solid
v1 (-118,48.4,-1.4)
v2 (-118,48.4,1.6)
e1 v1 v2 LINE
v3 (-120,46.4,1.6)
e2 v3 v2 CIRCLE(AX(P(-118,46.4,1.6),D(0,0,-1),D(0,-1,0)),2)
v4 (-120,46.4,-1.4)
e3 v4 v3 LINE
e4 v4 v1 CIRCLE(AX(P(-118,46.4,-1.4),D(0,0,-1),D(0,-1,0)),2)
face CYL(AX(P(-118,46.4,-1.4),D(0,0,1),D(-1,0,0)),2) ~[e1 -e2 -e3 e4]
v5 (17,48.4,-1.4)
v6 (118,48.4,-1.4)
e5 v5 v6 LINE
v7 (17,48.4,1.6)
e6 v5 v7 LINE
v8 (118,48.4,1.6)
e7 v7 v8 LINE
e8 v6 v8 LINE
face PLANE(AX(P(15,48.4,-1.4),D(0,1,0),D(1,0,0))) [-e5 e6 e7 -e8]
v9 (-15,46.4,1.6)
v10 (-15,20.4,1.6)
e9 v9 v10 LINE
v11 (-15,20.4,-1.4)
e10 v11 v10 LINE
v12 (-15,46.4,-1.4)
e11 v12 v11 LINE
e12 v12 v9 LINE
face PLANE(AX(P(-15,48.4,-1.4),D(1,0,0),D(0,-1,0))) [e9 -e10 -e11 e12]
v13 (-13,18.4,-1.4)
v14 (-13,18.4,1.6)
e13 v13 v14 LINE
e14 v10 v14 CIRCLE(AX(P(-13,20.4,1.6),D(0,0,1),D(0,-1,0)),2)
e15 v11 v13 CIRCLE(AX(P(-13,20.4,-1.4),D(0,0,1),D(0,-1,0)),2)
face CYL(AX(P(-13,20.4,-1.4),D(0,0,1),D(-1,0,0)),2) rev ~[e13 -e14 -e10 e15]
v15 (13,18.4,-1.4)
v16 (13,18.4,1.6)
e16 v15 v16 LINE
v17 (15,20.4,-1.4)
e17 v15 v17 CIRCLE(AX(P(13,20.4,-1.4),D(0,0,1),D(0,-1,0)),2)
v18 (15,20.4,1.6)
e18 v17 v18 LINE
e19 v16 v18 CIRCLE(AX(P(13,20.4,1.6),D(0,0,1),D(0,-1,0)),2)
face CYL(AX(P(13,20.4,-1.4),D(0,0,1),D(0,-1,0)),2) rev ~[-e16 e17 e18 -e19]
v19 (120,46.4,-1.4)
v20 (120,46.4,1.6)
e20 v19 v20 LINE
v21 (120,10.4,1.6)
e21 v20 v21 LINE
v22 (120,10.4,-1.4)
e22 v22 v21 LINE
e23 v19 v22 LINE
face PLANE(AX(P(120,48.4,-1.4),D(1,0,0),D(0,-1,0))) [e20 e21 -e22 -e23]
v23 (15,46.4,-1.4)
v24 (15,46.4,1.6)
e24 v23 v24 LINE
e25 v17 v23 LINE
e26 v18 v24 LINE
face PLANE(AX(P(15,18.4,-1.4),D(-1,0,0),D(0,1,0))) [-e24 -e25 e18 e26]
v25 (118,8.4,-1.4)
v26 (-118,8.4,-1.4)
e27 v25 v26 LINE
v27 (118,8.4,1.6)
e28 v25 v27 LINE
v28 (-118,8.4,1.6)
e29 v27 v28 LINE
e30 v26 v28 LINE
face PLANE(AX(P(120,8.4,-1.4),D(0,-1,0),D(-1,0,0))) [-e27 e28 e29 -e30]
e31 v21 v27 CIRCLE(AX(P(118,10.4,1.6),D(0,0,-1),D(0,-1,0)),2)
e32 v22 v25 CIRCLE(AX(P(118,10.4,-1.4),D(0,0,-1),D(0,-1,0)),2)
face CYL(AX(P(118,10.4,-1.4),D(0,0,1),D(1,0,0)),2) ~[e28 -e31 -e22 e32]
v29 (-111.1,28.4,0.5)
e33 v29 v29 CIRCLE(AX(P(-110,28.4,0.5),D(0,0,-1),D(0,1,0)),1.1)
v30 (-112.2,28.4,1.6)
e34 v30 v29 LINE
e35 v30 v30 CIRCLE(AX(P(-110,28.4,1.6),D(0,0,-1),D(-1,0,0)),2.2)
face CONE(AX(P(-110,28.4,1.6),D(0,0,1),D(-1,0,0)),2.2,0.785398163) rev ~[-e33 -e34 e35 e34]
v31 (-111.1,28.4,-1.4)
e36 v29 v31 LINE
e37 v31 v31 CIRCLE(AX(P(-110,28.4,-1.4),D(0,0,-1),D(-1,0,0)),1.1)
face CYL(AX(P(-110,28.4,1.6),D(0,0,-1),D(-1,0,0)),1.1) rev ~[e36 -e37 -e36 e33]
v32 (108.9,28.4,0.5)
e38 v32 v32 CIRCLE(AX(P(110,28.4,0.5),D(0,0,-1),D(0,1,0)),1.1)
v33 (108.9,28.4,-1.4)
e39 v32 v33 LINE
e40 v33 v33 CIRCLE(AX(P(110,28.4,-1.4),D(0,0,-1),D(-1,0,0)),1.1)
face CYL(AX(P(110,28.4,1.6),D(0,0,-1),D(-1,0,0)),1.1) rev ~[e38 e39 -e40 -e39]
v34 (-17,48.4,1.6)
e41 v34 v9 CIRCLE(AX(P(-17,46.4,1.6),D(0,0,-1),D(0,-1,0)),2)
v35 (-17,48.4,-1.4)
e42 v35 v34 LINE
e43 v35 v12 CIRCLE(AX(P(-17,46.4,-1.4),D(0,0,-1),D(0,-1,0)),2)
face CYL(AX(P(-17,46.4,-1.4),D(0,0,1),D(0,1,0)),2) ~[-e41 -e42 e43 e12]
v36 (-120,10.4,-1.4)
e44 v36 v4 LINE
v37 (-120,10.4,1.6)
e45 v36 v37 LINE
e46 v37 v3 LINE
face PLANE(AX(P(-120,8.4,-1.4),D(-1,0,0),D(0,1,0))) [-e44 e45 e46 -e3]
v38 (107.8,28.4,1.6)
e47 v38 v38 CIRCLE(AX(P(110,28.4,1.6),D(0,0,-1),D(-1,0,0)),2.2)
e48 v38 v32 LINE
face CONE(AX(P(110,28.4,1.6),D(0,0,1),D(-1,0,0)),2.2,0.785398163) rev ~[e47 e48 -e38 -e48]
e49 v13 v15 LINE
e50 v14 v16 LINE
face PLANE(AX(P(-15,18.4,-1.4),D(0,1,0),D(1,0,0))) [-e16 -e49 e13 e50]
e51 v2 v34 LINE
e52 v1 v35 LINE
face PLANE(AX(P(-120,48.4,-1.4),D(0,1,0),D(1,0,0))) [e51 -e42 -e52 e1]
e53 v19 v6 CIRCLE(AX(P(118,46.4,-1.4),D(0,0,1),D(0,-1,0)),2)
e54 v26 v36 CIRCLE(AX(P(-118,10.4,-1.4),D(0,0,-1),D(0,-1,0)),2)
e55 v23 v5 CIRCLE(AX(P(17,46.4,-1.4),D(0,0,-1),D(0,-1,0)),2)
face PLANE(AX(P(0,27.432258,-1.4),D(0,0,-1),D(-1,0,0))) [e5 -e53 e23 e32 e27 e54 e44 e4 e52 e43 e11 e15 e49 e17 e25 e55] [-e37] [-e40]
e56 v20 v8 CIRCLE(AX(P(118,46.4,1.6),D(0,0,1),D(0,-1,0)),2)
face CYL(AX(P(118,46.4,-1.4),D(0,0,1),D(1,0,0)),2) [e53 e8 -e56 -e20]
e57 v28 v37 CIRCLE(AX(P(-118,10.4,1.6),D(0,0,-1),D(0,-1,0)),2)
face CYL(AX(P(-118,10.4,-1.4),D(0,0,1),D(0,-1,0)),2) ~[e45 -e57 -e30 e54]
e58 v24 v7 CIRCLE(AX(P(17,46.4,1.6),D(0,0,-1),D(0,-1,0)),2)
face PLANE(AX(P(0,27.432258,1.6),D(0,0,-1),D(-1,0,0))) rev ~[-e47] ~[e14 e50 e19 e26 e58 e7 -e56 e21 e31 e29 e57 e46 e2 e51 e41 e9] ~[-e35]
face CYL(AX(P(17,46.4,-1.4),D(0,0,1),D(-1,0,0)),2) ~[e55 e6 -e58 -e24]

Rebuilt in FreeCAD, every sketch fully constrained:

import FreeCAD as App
import Part
import Sketcher
from FreeCAD import Vector
Q = App.Units.Quantity


def edges_at(feature, points):
    """Names of the edges that pass closest to the given points."""
    edges = feature.Shape.Edges
    near = lambda p: min(range(len(edges)), key=lambda i: edges[i].distToShape(Part.Vertex(*p))[0])
    return sorted({f"Edge{near(p) + 1}" for p in points})


def add_polygon(sketch, points):
    """Adds a closed chain of lines whose ends are joined by coincident constraints."""
    first, n = sketch.GeometryCount, len(points)
    for a, b in zip(points, points[1:] + points[:1]):
        sketch.addGeometry(Part.LineSegment(App.Vector(*a, 0), App.Vector(*b, 0)), False)
    for i in range(n):
        sketch.addConstraint(Sketcher.Constraint("Coincident", first + i, 2, first + (i + 1) % n, 1))

doc = App.newDocument("Part")
params = doc.addObject("Spreadsheet::Sheet", "Params")
for row, (alias, value) in enumerate([
    ("sketch1_width", "105 mm"),
    ("sketch1_width2", "30 mm"),
    ("sketch1_height", "40 mm"),
    ("pad1_length", "3 mm"),
    ("fillet_radius", "2 mm"),
    ("sketch2_diameter", "2.2 mm"),
    ("hole_diameter", "2.2 mm"),
    ("hole_depth", "20 mm"),
    ("hole_csink_diameter", "4.4 mm"),
], start=1):
    params.set(f"A{row}", alias)
    params.set(f"B{row}", "=" + value)
    params.setAlias(f"B{row}", alias)

body = doc.addObject("PartDesign::Body", "Body")

# Sketch on XY plane
sketch1 = doc.addObject("Sketcher::SketchObject", "Sketch")
body.addObject(sketch1)
sketch1.AttachmentSupport = (doc.XY_Plane, [""])
sketch1.MapMode = "FlatFace"
sketch1.AttachmentOffset = App.Placement(Vector(0, 0, -1.4), App.Rotation())
add_polygon(sketch1, [(120, 8), (120, 48), (15, 48), (15, 18), (-15, 18), (-15, 48), (-120, 48), (-120, 8)])  # lines 0-7
sketch1.addConstraint([
    Sketcher.Constraint("Vertical", 0),
    Sketcher.Constraint("Horizontal", 1),
    Sketcher.Constraint("Vertical", 2),
    Sketcher.Constraint("Horizontal", 3),
    Sketcher.Constraint("Vertical", 4),
    Sketcher.Constraint("Horizontal", 5),
    Sketcher.Constraint("Vertical", 6),
    Sketcher.Constraint("Horizontal", 7),
    Sketcher.Constraint("Symmetric", 1, 2, 4, 2, -2),
    Sketcher.Constraint("Equal", 1, 5),
    Sketcher.Constraint("Equal", 3, 2),
    Sketcher.Constraint("DistanceX", 1, 2, 1, 1, Q("105 mm")),
    Sketcher.Constraint("DistanceX", 3, 2, 3, 1, Q("30 mm")),
    Sketcher.Constraint("DistanceY", 0, 1, 0, 2, Q("40 mm")),
    Sketcher.Constraint("DistanceY", -1, 1, 0, 2, Q("48.4 mm")),
])
sketch1.setExpression("Constraints[19]", "Params.sketch1_width")
sketch1.setExpression("Constraints[20]", "Params.sketch1_width2")
sketch1.setExpression("Constraints[21]", "Params.sketch1_height")
pad1 = doc.addObject("PartDesign::Pad", "Pad")
body.addObject(pad1)
pad1.Profile = sketch1
pad1.setExpression("Length", "Params.pad1_length")
doc.recompute()

fillet = doc.addObject("PartDesign::Fillet", "Fillet")
body.addObject(fillet)
fillet.Base = (pad1, edges_at(pad1, [
    (-120, 48.4, 0.1),
    (-120, 8.4, 0.1),
    (120, 8.4, 0.1),
    (120, 48.4, 0.1),
    (15, 48.4, 0.1),
    (-15, 48.4, 0.1),
    (-15, 18.4, 0.1),
    (15, 18.4, 0.1),
]))
fillet.setExpression("Radius", "Params.fillet_radius")

# Sketch on XY plane
sketch2 = doc.addObject("Sketcher::SketchObject", "Sketch001")
body.addObject(sketch2)
sketch2.AttachmentSupport = (doc.XY_Plane, [""])
sketch2.MapMode = "FlatFace"
sketch2.AttachmentOffset = App.Placement(Vector(0, 0, 1.6), App.Rotation())
sketch2.addGeometry([
    Part.Circle(Vector(-110, 28.4, 0), Vector(0, 0, 1), 1.1),
    Part.Circle(Vector(110, 28.4, 0), Vector(0, 0, 1), 1.1),
], False)
sketch2.addConstraint([
    Sketcher.Constraint("Equal", 0, 1),
    Sketcher.Constraint("Symmetric", 0, 3, 1, 3, -2),
    Sketcher.Constraint("Diameter", 0, Q("2.2 mm")),
    Sketcher.Constraint("DistanceX", 0, 3, -1, 1, Q("110 mm")),
    Sketcher.Constraint("DistanceY", -1, 1, 0, 3, Q("28.4 mm")),
])
sketch2.setExpression("Constraints[2]", "Params.sketch2_diameter")
doc.recompute()
hole = doc.addObject("PartDesign::Hole", "Hole")
body.addObject(hole)
hole.Profile = sketch2
hole.ThreadType = "None"
hole.setExpression("Diameter", "Params.hole_diameter")
hole.DepthType = "Dimension"
hole.setExpression("Depth", "Params.hole_depth")
hole.DrillPoint = "Flat"
hole.HoleCutType = "Countersink"
hole.setExpression("HoleCutDiameter", "Params.hole_csink_diameter")
hole.HoleCutCountersinkAngle = 90

doc.recompute()
